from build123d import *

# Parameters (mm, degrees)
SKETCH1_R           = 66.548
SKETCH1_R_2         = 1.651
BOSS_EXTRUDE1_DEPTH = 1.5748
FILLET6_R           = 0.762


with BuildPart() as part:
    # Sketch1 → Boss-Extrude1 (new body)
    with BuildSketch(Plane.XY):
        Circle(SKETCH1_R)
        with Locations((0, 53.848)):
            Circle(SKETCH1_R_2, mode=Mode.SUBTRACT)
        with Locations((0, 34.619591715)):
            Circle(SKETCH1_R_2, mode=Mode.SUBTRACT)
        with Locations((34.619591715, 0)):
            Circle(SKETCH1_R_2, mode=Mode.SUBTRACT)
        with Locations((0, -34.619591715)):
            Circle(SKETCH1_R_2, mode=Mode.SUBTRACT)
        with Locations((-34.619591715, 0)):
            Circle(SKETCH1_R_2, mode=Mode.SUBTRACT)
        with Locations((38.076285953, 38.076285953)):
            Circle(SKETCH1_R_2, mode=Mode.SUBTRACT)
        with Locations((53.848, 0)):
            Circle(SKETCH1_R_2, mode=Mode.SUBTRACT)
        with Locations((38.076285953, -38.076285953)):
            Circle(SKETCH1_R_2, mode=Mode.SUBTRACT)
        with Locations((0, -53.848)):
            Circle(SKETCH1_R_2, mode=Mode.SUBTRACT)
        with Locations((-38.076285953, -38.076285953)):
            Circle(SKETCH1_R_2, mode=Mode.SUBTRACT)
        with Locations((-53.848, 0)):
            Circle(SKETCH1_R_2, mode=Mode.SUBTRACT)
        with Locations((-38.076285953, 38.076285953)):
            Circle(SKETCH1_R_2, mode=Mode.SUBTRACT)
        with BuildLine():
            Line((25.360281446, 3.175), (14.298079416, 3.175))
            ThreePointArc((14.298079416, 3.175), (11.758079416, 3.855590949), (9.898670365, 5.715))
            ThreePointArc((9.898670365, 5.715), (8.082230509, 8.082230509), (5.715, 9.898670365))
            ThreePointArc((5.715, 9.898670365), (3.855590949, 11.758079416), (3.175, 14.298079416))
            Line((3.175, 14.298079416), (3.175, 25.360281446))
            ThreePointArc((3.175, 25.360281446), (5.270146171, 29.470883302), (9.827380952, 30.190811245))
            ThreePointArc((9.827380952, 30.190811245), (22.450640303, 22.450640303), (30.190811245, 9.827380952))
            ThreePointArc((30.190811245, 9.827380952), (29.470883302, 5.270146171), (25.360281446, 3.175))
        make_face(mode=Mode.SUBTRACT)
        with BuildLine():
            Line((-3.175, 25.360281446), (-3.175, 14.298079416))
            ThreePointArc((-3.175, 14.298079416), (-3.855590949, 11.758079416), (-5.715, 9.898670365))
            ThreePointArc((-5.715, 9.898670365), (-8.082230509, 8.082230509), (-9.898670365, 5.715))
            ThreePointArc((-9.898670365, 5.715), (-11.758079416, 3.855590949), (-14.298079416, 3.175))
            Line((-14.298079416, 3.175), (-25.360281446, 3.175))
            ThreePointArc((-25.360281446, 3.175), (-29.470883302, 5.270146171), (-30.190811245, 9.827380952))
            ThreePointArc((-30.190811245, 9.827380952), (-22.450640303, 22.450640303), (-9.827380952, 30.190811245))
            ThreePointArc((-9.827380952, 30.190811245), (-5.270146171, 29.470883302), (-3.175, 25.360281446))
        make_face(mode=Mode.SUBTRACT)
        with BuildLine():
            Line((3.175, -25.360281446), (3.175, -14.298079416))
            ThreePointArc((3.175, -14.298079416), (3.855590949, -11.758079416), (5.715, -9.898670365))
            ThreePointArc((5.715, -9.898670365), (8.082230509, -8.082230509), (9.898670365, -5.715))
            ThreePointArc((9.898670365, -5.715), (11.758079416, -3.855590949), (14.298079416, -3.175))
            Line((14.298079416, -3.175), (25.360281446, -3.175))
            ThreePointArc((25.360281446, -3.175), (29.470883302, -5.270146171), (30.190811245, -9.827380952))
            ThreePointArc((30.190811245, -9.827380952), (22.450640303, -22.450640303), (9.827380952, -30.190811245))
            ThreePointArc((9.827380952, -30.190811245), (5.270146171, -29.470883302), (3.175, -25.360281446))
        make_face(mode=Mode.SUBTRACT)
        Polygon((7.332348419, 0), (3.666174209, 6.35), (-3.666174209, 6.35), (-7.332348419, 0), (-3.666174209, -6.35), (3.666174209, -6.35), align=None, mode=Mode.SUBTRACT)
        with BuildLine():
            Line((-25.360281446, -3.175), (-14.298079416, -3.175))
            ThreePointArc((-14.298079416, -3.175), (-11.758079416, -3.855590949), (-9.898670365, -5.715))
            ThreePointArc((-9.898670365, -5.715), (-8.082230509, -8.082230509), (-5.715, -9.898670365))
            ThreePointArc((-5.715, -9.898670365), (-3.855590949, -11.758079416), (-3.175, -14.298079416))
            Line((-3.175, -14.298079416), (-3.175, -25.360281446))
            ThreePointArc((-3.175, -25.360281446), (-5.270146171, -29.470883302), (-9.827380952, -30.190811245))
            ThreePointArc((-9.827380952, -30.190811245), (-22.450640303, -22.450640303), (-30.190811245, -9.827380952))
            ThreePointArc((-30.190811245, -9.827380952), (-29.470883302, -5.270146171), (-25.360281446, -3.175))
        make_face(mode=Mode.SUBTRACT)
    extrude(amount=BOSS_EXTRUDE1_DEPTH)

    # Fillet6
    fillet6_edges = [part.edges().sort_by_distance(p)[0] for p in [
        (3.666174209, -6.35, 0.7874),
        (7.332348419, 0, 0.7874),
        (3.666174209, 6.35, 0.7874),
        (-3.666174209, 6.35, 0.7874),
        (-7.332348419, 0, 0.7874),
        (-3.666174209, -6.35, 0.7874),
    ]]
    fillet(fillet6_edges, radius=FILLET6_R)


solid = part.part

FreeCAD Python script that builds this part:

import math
import FreeCAD as App
import Part
import Sketcher

V = App.Vector
Q = App.Units.Quantity


def edges_at(feature, points):
    """Names of the edges that pass closest to the given points."""
    edges = feature.Shape.Edges
    near = lambda p: min(range(len(edges)), key=lambda i: edges[i].distToShape(Part.Vertex(*p))[0])
    return sorted({f"Edge{near(p) + 1}" for p in points})


def add_polygon(sketch, points):
    """Adds a closed chain of lines whose ends are joined by coincident constraints."""
    first, n = sketch.GeometryCount, len(points)
    for a, b in zip(points, points[1:] + points[:1]):
        sketch.addGeometry(Part.LineSegment(App.Vector(*a, 0), App.Vector(*b, 0)), False)
    for i in range(n):
        sketch.addConstraint(Sketcher.Constraint("Coincident", first + i, 2, first + (i + 1) % n, 1))

doc = App.newDocument("Part")
params = doc.addObject("Spreadsheet::Sheet", "Params")
for row, (alias, value) in enumerate([
    ("sketch1_radius", "0.2 in"),
    ("sketch1_diameter", "5.24 in"),
    ("sketch1_diameter2", "0.13 in"),
    ("sketch1_radius2", "0.45 in"),
    ("sketch1_radius3", "1.25 in"),
    ("pad1_length", "0.062 in"),
    ("fillet_radius", "0.03 in"),
], start=1):
    params.set(f"A{row}", alias)
    params.set(f"B{row}", "=" + value)
    params.setAlias(f"B{row}", alias)

body = doc.addObject("PartDesign::Body", "Body")

sketch1 = body.newObject("Sketcher::SketchObject", "Sketch")
sketch1.AttachmentSupport = (doc.getObject("XY_Plane"), [""])
sketch1.MapMode = "FlatFace"
sketch1.addGeometry(Part.Circle(V(0, 0, 0), V(0, 0, 1), 66.5), False)
sketch1.addGeometry(Part.Circle(V(-38.1, -38.1, 0), V(0, 0, 1), 1.7), False)
sketch1.addGeometry(Part.ArcOfCircle(Part.Circle(V(-25.4, -8.3, 0), V(0, 0, 1), 5.1), math.radians(90), math.radians(198)), False)
sketch1.addGeometry(Part.LineSegment(V(-25.4, -3.2, 0), V(-14.3, -3.2, 0)), False)
sketch1.addGeometry(Part.ArcOfCircle(Part.Circle(V(-14.3, -8.3, 0), V(0, 0, 1), 5.1), math.radians(30), math.radians(90)), False)
sketch1.addGeometry(Part.ArcOfCircle(Part.Circle(V(0, 0, 0), V(0, 0, 1), 11.4), math.radians(-150), math.radians(-120)), False)
sketch1.addGeometry(Part.ArcOfCircle(Part.Circle(V(-8.3, -14.3, 0), V(0, 0, 1), 5.1), math.radians(0), math.radians(60)), False)
sketch1.addGeometry(Part.LineSegment(V(-3.2, -14.3, 0), V(-3.2, -25.4, 0)), False)
sketch1.addGeometry(Part.ArcOfCircle(Part.Circle(V(-8.3, -25.4, 0), V(0, 0, 1), 5.1), math.radians(-108), math.radians(0)), False)
sketch1.addGeometry(Part.ArcOfCircle(Part.Circle(V(0, 0, 0), V(0, 0, 1), 31.7), math.radians(-162), math.radians(-108)), False)
sketch1.addGeometry(Part.Circle(V(0, -53.8, 0), V(0, 0, 1), 1.7), False)
sketch1.addGeometry(Part.Circle(V(0, -34.6, 0), V(0, 0, 1), 1.7), False)
sketch1.addGeometry(Part.Circle(V(38.1, -38.1, 0), V(0, 0, 1), 1.7), False)
sketch1.addGeometry(Part.ArcOfCircle(Part.Circle(V(8.3, -25.4, 0), V(0, 0, 1), 5.1), math.radians(180), math.radians(288)), False)
sketch1.addGeometry(Part.LineSegment(V(3.2, -25.4, 0), V(3.2, -14.3, 0)), False)
sketch1.addGeometry(Part.ArcOfCircle(Part.Circle(V(8.3, -14.3, 0), V(0, 0, 1), 5.1), math.radians(120), math.radians(180)), False)
sketch1.addGeometry(Part.ArcOfCircle(Part.Circle(V(0, 0, 0), V(0, 0, 1), 11.4), math.radians(-60), math.radians(-30)), False)
sketch1.addGeometry(Part.ArcOfCircle(Part.Circle(V(14.3, -8.3, 0), V(0, 0, 1), 5.1), math.radians(90), math.radians(150)), False)
sketch1.addGeometry(Part.LineSegment(V(14.3, -3.2, 0), V(25.4, -3.2, 0)), False)
sketch1.addGeometry(Part.ArcOfCircle(Part.Circle(V(25.4, -8.3, 0), V(0, 0, 1), 5.1), math.radians(-18), math.radians(90)), False)
sketch1.addGeometry(Part.ArcOfCircle(Part.Circle(V(0, 0, 0), V(0, 0, 1), 31.7), math.radians(-72), math.radians(-18)), False)
sketch1.addGeometry(Part.Circle(V(-53.8, 0, 0), V(0, 0, 1), 1.7), False)
sketch1.addGeometry(Part.Circle(V(-34.6, 0, 0), V(0, 0, 1), 1.7), False)
sketch1.addGeometry(Part.ArcOfCircle(Part.Circle(V(-8.3, 25.4, 0), V(0, 0, 1), 5.1), math.radians(0), math.radians(108)), False)
sketch1.addGeometry(Part.LineSegment(V(-3.2, 25.4, 0), V(-3.2, 14.3, 0)), False)
sketch1.addGeometry(Part.ArcOfCircle(Part.Circle(V(-8.3, 14.3, 0), V(0, 0, 1), 5.1), math.radians(-60), math.radians(0)), False)
sketch1.addGeometry(Part.ArcOfCircle(Part.Circle(V(0, 0, 0), V(0, 0, 1), 11.4), math.radians(120), math.radians(150)), False)
sketch1.addGeometry(Part.ArcOfCircle(Part.Circle(V(-14.3, 8.3, 0), V(0, 0, 1), 5.1), math.radians(-90), math.radians(-30)), False)
sketch1.addGeometry(Part.LineSegment(V(-14.3, 3.2, 0), V(-25.4, 3.2, 0)), False)
sketch1.addGeometry(Part.ArcOfCircle(Part.Circle(V(-25.4, 8.3, 0), V(0, 0, 1), 5.1), math.radians(162), math.radians(270)), False)
sketch1.addGeometry(Part.ArcOfCircle(Part.Circle(V(0, 0, 0), V(0, 0, 1), 31.7), math.radians(108), math.radians(162)), False)
sketch1.addGeometry(Part.Circle(V(-38.1, 38.1, 0), V(0, 0, 1), 1.7), False)
add_polygon(sketch1, [(3.7, 6.3), (7.3, 0), (3.7, -6.3), (-3.7, -6.3), (-7.3, 0), (-3.7, 6.3)])
sketch1.addGeometry(Part.ArcOfCircle(Part.Circle(V(25.4, 8.3, 0), V(0, 0, 1), 5.1), math.radians(-90), math.radians(18)), False)
sketch1.addGeometry(Part.LineSegment(V(25.4, 3.2, 0), V(14.3, 3.2, 0)), False)
sketch1.addGeometry(Part.ArcOfCircle(Part.Circle(V(14.3, 8.3, 0), V(0, 0, 1), 5.1), math.radians(-150), math.radians(-90)), False)
sketch1.addGeometry(Part.ArcOfCircle(Part.Circle(V(0, 0, 0), V(0, 0, 1), 11.4), math.radians(30), math.radians(60)), False)
sketch1.addGeometry(Part.ArcOfCircle(Part.Circle(V(8.3, 14.3, 0), V(0, 0, 1), 5.1), math.radians(-180), math.radians(-120)), False)
sketch1.addGeometry(Part.LineSegment(V(3.2, 14.3, 0), V(3.2, 25.4, 0)), False)
sketch1.addGeometry(Part.ArcOfCircle(Part.Circle(V(8.3, 25.4, 0), V(0, 0, 1), 5.1), math.radians(72), math.radians(180)), False)
sketch1.addGeometry(Part.ArcOfCircle(Part.Circle(V(0, 0, 0), V(0, 0, 1), 31.7), math.radians(18), math.radians(72)), False)
sketch1.addGeometry(Part.Circle(V(34.6, 0, 0), V(0, 0, 1), 1.7), False)
sketch1.addGeometry(Part.Circle(V(53.8, 0, 0), V(0, 0, 1), 1.7), False)
sketch1.addGeometry(Part.Circle(V(0, 34.6, 0), V(0, 0, 1), 1.7), False)
sketch1.addGeometry(Part.Circle(V(0, 53.8, 0), V(0, 0, 1), 1.7), False)
sketch1.addGeometry(Part.Circle(V(38.1, 38.1, 0), V(0, 0, 1), 1.7), False)
sketch1.addConstraint(Sketcher.Constraint("Tangent", 2, 1, 3, 1))
sketch1.addConstraint(Sketcher.Constraint("Tangent", 3, 2, 4, 2))
sketch1.addConstraint(Sketcher.Constraint("Tangent", 4, 1, 5, 1))
sketch1.addConstraint(Sketcher.Constraint("Tangent", 5, 2, 6, 2))
sketch1.addConstraint(Sketcher.Constraint("Tangent", 6, 1, 7, 1))
sketch1.addConstraint(Sketcher.Constraint("Tangent", 7, 2, 8, 2))
sketch1.addConstraint(Sketcher.Constraint("Tangent", 8, 1, 9, 2))
sketch1.addConstraint(Sketcher.Constraint("Tangent", 9, 1, 2, 2))
sketch1.addConstraint(Sketcher.Constraint("Tangent", 13, 1, 14, 1))
sketch1.addConstraint(Sketcher.Constraint("Tangent", 14, 2, 15, 2))
sketch1.addConstraint(Sketcher.Constraint("Tangent", 15, 1, 16, 1))
sketch1.addConstraint(Sketcher.Constraint("Tangent", 16, 2, 17, 2))
sketch1.addConstraint(Sketcher.Constraint("Tangent", 17, 1, 18, 1))
sketch1.addConstraint(Sketcher.Constraint("Tangent", 18, 2, 19, 2))
sketch1.addConstraint(Sketcher.Constraint("Tangent", 19, 1, 20, 2))
sketch1.addConstraint(Sketcher.Constraint("Tangent", 20, 1, 13, 2))
sketch1.addConstraint(Sketcher.Constraint("Tangent", 23, 1, 24, 1))
sketch1.addConstraint(Sketcher.Constraint("Tangent", 24, 2, 25, 2))
sketch1.addConstraint(Sketcher.Constraint("Tangent", 25, 1, 26, 1))
sketch1.addConstraint(Sketcher.Constraint("Tangent", 26, 2, 27, 2))
sketch1.addConstraint(Sketcher.Constraint("Tangent", 27, 1, 28, 1))
sketch1.addConstraint(Sketcher.Constraint("Tangent", 28, 2, 29, 2))
sketch1.addConstraint(Sketcher.Constraint("Tangent", 29, 1, 30, 2))
sketch1.addConstraint(Sketcher.Constraint("Tangent", 30, 1, 23, 2))
sketch1.addConstraint(Sketcher.Constraint("Tangent", 38, 1, 39, 1))
sketch1.addConstraint(Sketcher.Constraint("Tangent", 39, 2, 40, 2))
sketch1.addConstraint(Sketcher.Constraint("Tangent", 40, 1, 41, 1))
sketch1.addConstraint(Sketcher.Constraint("Tangent", 41, 2, 42, 2))
sketch1.addConstraint(Sketcher.Constraint("Tangent", 42, 1, 43, 1))
sketch1.addConstraint(Sketcher.Constraint("Tangent", 43, 2, 44, 2))
sketch1.addConstraint(Sketcher.Constraint("Tangent", 44, 1, 45, 2))
sketch1.addConstraint(Sketcher.Constraint("Tangent", 45, 1, 38, 2))
sketch1.addConstraint(Sketcher.Constraint("Horizontal", 3))
sketch1.addConstraint(Sketcher.Constraint("Vertical", 7))
sketch1.addConstraint(Sketcher.Constraint("Vertical", 14))
sketch1.addConstraint(Sketcher.Constraint("Horizontal", 18))
sketch1.addConstraint(Sketcher.Constraint("Vertical", 24))
sketch1.addConstraint(Sketcher.Constraint("Horizontal", 28))
sketch1.addConstraint(Sketcher.Constraint("Horizontal", 34))
sketch1.addConstraint(Sketcher.Constraint("Horizontal", 37))
sketch1.addConstraint(Sketcher.Constraint("Horizontal", 39))
sketch1.addConstraint(Sketcher.Constraint("Vertical", 43))
sketch1.addConstraint(Sketcher.Constraint("Coincident", 0, 3, -1, 1))
sketch1.addConstraint(Sketcher.Constraint("Coincident", 5, 3, -1, 1))
sketch1.addConstraint(Sketcher.Constraint("Coincident", 9, 3, -1, 1))
sketch1.addConstraint(Sketcher.Constraint("Coincident", 16, 3, -1, 1))
sketch1.addConstraint(Sketcher.Constraint("Coincident", 20, 3, -1, 1))
sketch1.addConstraint(Sketcher.Constraint("Coincident", 26, 3, -1, 1))
sketch1.addConstraint(Sketcher.Constraint("Coincident", 30, 3, -1, 1))
sketch1.addConstraint(Sketcher.Constraint("Coincident", 41, 3, -1, 1))
sketch1.addConstraint(Sketcher.Constraint("Coincident", 45, 3, -1, 1))
sketch1.addConstraint(Sketcher.Constraint("Equal", 2, 4))
sketch1.addConstraint(Sketcher.Constraint("Equal", 4, 6))
sketch1.addConstraint(Sketcher.Constraint("Equal", 6, 8))
sketch1.addConstraint(Sketcher.Constraint("Equal", 1, 10))
sketch1.addConstraint(Sketcher.Constraint("Equal", 10, 11))
sketch1.addConstraint(Sketcher.Constraint("Equal", 11, 12))
sketch1.addConstraint(Sketcher.Constraint("Equal", 8, 13))
sketch1.addConstraint(Sketcher.Constraint("Equal", 13, 15))
sketch1.addConstraint(Sketcher.Constraint("Equal", 5, 16))
sketch1.addConstraint(Sketcher.Constraint("Equal", 15, 17))
sketch1.addConstraint(Sketcher.Constraint("Equal", 17, 19))
sketch1.addConstraint(Sketcher.Constraint("Equal", 9, 20))
sketch1.addConstraint(Sketcher.Constraint("Equal", 12, 21))
sketch1.addConstraint(Sketcher.Constraint("Equal", 21, 22))
sketch1.addConstraint(Sketcher.Constraint("Equal", 19, 23))
sketch1.addConstraint(Sketcher.Constraint("Equal", 23, 25))
sketch1.addConstraint(Sketcher.Constraint("Equal", 16, 26))
sketch1.addConstraint(Sketcher.Constraint("Equal", 25, 27))
sketch1.addConstraint(Sketcher.Constraint("Equal", 27, 29))
sketch1.addConstraint(Sketcher.Constraint("Equal", 20, 30))
sketch1.addConstraint(Sketcher.Constraint("Equal", 22, 31))
sketch1.addConstraint(Sketcher.Constraint("Equal", 29, 38))
sketch1.addConstraint(Sketcher.Constraint("Equal", 38, 40))
sketch1.addConstraint(Sketcher.Constraint("Equal", 26, 41))
sketch1.addConstraint(Sketcher.Constraint("Equal", 40, 42))
sketch1.addConstraint(Sketcher.Constraint("Equal", 42, 44))
sketch1.addConstraint(Sketcher.Constraint("Equal", 30, 45))
sketch1.addConstraint(Sketcher.Constraint("Equal", 31, 46))
sketch1.addConstraint(Sketcher.Constraint("Equal", 46, 47))
sketch1.addConstraint(Sketcher.Constraint("Equal", 47, 48))
sketch1.addConstraint(Sketcher.Constraint("Equal", 48, 49))
sketch1.addConstraint(Sketcher.Constraint("Equal", 49, 50))
sketch1.addConstraint(Sketcher.Constraint("Symmetric", 12, 3, 31, 3, -1, 1))
sketch1.addConstraint(Sketcher.Constraint("Symmetric", 22, 3, 46, 3, -1, 1))
sketch1.addConstraint(Sketcher.Constraint("Symmetric", 21, 3, 47, 3, -1, 1))
sketch1.addConstraint(Sketcher.Constraint("Symmetric", 11, 3, 48, 3, -1, 1))
sketch1.addConstraint(Sketcher.Constraint("Symmetric", 10, 3, 49, 3, -1, 1))
sketch1.addConstraint(Sketcher.Constraint("Symmetric", 1, 3, 50, 3, -1, 1))
sketch1.addConstraint(Sketcher.Constraint("Symmetric", 32, 2, 35, 2, -1, 1))
sketch1.addConstraint(Sketcher.Constraint("Symmetric", 33, 2, 36, 2, -1, 1))
sketch1.addConstraint(Sketcher.Constraint("Symmetric", 1, 3, 12, 3, -2))
sketch1.addConstraint(Sketcher.Constraint("PointOnObject", 10, 3, -2))
sketch1.addConstraint(Sketcher.Constraint("PointOnObject", 11, 3, -2))
sketch1.addConstraint(Sketcher.Constraint("PointOnObject", 21, 3, -1))
sketch1.addConstraint(Sketcher.Constraint("PointOnObject", 22, 3, -1))
sketch1.addConstraint(Sketcher.Constraint("PointOnObject", 32, 2, -1))
sketch1.addConstraint(Sketcher.Constraint("Parallel", 32, 35))
sketch1.addConstraint(Sketcher.Constraint("Horizontal", 8, 3, 13, 3))
sketch1.addConstraint(Sketcher.Constraint("Horizontal", 4, 3, 17, 3))
sketch1.addConstraint(Sketcher.Constraint("Horizontal", 29, 3, 38, 3))
sketch1.addConstraint(Sketcher.Constraint("Horizontal", 25, 3, 42, 3))
sketch1.addConstraint(Sketcher.Constraint("Vertical", 8, 3, 23, 3))
sketch1.addConstraint(Sketcher.Constraint("Vertical", 4, 3, 27, 3))
sketch1.addConstraint(Sketcher.Constraint("Vertical", 34, 2, 36, 2))
sketch1.addConstraint(Sketcher.Constraint("Equal", 39, 7))
sketch1.addConstraint(Sketcher.Constraint("Radius", 2, Q("0.2 in")))
sketch1.addConstraint(Sketcher.Constraint("Diameter", 0, Q("5.24 in")))
sketch1.addConstraint(Sketcher.Constraint("Diameter", 1, Q("0.13 in")))
sketch1.addConstraint(Sketcher.Constraint("Radius", 5, Q("0.45 in")))
sketch1.addConstraint(Sketcher.Constraint("Radius", 9, Q("1.25 in")))
sketch1.addConstraint(Sketcher.Constraint("Angle", 32, Q("-60 deg")))
sketch1.addConstraint(Sketcher.Constraint("DistanceY", 10, 3, -1, 1, Q("2.12 in")))
sketch1.addConstraint(Sketcher.Constraint("DistanceX", 21, 3, -1, 1, Q("2.12 in")))
sketch1.addConstraint(Sketcher.Constraint("DistanceY", 33, 2, -1, 1, Q("0.25 in")))
sketch1.addConstraint(Sketcher.Constraint("DistanceY", 2, 3, -1, 1, Q("0.325 in")))
sketch1.addConstraint(Sketcher.Constraint("DistanceX", 34, 2, 34, 1, Q("7.332348 mm")))
sketch1.addConstraint(Sketcher.Constraint("DistanceY", 11, 3, -1, 1, Q("34.619592 mm")))
sketch1.addConstraint(Sketcher.Constraint("DistanceX", 22, 3, -1, 1, Q("34.619592 mm")))
sketch1.addConstraint(Sketcher.Constraint("DistanceX", 1, 3, -1, 1, Q("38.076286 mm")))
sketch1.addConstraint(Sketcher.Constraint("DistanceY", 1, 3, -1, 1, Q("38.076286 mm")))
sketch1.setExpression("Constraints[112]", "Params.sketch1_radius")
sketch1.setExpression("Constraints[113]", "Params.sketch1_diameter")
sketch1.setExpression("Constraints[114]", "Params.sketch1_diameter2")
sketch1.setExpression("Constraints[115]", "Params.sketch1_radius2")
sketch1.setExpression("Constraints[116]", "Params.sketch1_radius3")
pad1 = body.newObject("PartDesign::Pad", "Pad")
pad1.Profile = sketch1
pad1.setExpression("Length", "Params.pad1_length")
doc.recompute()

fillet = body.newObject("PartDesign::Fillet", "Fillet")
fillet.Base = (pad1, edges_at(pad1, [
    (3.666, -6.35, 0.787),
    (7.332, 0, 0.787),
    (3.666, 6.35, 0.787),
    (-3.666, 6.35, 0.787),
    (-7.332, 0, 0.787),
    (-3.666, -6.35, 0.787),
]))
fillet.setExpression("Radius", "Params.fillet_radius")

doc.recompute()
